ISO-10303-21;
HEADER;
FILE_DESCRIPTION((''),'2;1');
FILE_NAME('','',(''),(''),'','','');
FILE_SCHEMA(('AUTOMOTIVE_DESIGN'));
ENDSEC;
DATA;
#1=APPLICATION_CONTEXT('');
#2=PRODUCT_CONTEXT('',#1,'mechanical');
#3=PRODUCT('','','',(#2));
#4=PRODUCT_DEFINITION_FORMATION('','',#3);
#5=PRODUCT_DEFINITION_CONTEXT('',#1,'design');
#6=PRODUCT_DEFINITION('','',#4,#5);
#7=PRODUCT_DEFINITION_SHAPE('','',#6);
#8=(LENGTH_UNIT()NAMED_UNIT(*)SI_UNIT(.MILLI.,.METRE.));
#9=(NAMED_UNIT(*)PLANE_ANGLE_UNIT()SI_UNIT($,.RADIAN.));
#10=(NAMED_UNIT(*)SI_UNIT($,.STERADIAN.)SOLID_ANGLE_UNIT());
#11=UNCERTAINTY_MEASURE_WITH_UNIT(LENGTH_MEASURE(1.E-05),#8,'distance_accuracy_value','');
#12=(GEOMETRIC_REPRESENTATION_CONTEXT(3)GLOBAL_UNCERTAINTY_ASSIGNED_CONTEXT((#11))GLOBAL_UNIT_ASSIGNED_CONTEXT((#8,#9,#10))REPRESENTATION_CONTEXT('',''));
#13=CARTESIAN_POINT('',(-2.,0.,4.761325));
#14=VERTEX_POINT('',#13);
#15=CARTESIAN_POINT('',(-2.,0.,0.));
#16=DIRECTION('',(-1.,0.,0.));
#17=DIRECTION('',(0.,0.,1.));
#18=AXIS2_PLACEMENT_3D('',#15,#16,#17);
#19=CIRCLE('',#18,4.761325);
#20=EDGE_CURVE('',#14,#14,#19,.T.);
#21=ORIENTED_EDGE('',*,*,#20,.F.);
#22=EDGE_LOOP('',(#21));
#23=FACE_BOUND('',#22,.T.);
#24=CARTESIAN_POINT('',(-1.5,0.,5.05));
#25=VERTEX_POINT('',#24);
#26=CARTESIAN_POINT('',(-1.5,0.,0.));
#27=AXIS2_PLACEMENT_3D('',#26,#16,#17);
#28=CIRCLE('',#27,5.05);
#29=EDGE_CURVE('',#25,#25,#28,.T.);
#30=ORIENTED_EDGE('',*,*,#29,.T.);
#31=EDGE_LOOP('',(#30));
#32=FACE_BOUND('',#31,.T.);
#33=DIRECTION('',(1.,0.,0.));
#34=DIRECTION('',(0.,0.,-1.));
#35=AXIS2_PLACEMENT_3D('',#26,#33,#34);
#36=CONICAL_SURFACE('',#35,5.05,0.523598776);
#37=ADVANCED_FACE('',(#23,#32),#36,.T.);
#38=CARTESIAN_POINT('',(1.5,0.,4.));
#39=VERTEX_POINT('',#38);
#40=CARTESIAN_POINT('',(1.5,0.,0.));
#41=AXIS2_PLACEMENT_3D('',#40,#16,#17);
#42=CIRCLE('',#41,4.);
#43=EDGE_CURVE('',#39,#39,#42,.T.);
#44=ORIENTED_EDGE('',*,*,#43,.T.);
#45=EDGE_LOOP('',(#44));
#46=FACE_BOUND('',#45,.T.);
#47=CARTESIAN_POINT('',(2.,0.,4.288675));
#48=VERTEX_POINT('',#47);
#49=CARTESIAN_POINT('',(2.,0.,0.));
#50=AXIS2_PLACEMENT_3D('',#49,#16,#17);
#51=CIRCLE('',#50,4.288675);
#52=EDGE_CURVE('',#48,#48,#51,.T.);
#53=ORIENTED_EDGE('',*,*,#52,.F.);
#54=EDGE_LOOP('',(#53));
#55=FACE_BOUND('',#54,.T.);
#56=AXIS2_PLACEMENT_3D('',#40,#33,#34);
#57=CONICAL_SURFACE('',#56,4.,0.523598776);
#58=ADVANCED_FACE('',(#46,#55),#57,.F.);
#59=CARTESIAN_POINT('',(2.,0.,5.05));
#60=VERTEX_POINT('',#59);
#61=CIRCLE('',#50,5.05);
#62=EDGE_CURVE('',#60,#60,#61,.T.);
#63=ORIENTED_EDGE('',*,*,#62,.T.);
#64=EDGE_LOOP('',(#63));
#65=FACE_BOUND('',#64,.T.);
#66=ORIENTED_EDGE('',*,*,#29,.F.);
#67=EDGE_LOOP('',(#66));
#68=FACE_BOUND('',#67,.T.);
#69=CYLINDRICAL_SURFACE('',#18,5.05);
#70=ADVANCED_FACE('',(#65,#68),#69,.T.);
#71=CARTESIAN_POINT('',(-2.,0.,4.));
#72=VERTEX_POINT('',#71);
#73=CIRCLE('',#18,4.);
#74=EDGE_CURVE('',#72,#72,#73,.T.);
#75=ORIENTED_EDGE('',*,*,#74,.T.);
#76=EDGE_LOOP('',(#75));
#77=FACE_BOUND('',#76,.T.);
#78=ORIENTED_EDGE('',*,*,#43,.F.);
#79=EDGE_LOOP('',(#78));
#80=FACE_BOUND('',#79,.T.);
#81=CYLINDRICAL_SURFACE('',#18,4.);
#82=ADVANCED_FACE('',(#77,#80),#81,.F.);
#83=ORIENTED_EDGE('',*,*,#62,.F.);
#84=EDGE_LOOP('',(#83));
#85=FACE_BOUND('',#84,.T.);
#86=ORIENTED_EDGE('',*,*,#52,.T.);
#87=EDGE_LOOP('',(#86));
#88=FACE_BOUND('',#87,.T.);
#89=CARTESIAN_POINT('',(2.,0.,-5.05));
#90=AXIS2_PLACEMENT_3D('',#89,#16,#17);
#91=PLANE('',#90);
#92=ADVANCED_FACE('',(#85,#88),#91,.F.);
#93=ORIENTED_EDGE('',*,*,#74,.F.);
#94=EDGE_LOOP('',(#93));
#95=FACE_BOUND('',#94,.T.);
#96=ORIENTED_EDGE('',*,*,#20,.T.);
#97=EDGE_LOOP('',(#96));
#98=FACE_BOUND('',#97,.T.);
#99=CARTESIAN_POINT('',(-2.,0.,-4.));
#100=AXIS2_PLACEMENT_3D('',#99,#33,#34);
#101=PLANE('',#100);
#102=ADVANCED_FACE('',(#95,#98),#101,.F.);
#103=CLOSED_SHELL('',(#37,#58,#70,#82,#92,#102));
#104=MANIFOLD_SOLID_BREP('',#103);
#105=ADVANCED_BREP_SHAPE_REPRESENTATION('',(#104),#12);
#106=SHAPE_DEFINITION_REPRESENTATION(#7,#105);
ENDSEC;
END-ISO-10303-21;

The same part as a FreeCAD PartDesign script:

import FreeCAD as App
import Part
import Sketcher
Q = App.Units.Quantity

doc = App.newDocument("Part")
body = doc.addObject("PartDesign::Body", "Body")

sketch1 = body.newObject("Sketcher::SketchObject", "Sketch")
sketch1.AttachmentSupport = (doc.getObject("XZ_Plane"), [""])
sketch1.MapMode = "FlatFace"
sketch1.addGeometry([
    Part.LineSegment(App.Vector(2, -5, 0), App.Vector(-1.5, -5, 0)),
    Part.LineSegment(App.Vector(-1.5, -5, 0), App.Vector(-2, -4.8, 0)),
    Part.LineSegment(App.Vector(-2, -4.8, 0), App.Vector(-2, -4, 0)),
    Part.LineSegment(App.Vector(-2, -4, 0), App.Vector(1.5, -4, 0)),
    Part.LineSegment(App.Vector(1.5, -4, 0), App.Vector(2, -4.3, 0)),
    Part.LineSegment(App.Vector(2, -4.3, 0), App.Vector(2, -5, 0)),
], False)
sketch1.addConstraint([
    Sketcher.Constraint("Coincident", 0, 2, 1, 1),
    Sketcher.Constraint("Coincident", 1, 2, 2, 1),
    Sketcher.Constraint("Coincident", 2, 2, 3, 1),
    Sketcher.Constraint("Coincident", 3, 2, 4, 1),
    Sketcher.Constraint("Coincident", 4, 2, 5, 1),
    Sketcher.Constraint("Coincident", 5, 2, 0, 1),
    Sketcher.Constraint("Horizontal", 0),
    Sketcher.Constraint("Vertical", 2),
    Sketcher.Constraint("Horizontal", 3),
    Sketcher.Constraint("Vertical", 5),
    Sketcher.Constraint("Parallel", 1, 4),
    Sketcher.Constraint("Equal", 0, 3),
    Sketcher.Constraint("Angle", 1, Q("150 deg")),
    Sketcher.Constraint("DistanceX", 0, 2, 0, 1, Q("3.5 mm")),
    Sketcher.Constraint("DistanceX", 1, 2, -1, 1, Q("2 mm")),
    Sketcher.Constraint("DistanceY", 2, 2, -1, 1, Q("4 mm")),
    Sketcher.Constraint("DistanceX", -1, 1, 4, 2, Q("2 mm")),
    Sketcher.Constraint("DistanceY", 0, 2, -1, 1, Q("5.05 mm")),
])
revolution = body.newObject("PartDesign::Revolution", "Revolution")
revolution.Profile = sketch1
revolution.ReferenceAxis = (sketch1, ["H_Axis"])
revolution.Angle = 360

doc.recompute()
